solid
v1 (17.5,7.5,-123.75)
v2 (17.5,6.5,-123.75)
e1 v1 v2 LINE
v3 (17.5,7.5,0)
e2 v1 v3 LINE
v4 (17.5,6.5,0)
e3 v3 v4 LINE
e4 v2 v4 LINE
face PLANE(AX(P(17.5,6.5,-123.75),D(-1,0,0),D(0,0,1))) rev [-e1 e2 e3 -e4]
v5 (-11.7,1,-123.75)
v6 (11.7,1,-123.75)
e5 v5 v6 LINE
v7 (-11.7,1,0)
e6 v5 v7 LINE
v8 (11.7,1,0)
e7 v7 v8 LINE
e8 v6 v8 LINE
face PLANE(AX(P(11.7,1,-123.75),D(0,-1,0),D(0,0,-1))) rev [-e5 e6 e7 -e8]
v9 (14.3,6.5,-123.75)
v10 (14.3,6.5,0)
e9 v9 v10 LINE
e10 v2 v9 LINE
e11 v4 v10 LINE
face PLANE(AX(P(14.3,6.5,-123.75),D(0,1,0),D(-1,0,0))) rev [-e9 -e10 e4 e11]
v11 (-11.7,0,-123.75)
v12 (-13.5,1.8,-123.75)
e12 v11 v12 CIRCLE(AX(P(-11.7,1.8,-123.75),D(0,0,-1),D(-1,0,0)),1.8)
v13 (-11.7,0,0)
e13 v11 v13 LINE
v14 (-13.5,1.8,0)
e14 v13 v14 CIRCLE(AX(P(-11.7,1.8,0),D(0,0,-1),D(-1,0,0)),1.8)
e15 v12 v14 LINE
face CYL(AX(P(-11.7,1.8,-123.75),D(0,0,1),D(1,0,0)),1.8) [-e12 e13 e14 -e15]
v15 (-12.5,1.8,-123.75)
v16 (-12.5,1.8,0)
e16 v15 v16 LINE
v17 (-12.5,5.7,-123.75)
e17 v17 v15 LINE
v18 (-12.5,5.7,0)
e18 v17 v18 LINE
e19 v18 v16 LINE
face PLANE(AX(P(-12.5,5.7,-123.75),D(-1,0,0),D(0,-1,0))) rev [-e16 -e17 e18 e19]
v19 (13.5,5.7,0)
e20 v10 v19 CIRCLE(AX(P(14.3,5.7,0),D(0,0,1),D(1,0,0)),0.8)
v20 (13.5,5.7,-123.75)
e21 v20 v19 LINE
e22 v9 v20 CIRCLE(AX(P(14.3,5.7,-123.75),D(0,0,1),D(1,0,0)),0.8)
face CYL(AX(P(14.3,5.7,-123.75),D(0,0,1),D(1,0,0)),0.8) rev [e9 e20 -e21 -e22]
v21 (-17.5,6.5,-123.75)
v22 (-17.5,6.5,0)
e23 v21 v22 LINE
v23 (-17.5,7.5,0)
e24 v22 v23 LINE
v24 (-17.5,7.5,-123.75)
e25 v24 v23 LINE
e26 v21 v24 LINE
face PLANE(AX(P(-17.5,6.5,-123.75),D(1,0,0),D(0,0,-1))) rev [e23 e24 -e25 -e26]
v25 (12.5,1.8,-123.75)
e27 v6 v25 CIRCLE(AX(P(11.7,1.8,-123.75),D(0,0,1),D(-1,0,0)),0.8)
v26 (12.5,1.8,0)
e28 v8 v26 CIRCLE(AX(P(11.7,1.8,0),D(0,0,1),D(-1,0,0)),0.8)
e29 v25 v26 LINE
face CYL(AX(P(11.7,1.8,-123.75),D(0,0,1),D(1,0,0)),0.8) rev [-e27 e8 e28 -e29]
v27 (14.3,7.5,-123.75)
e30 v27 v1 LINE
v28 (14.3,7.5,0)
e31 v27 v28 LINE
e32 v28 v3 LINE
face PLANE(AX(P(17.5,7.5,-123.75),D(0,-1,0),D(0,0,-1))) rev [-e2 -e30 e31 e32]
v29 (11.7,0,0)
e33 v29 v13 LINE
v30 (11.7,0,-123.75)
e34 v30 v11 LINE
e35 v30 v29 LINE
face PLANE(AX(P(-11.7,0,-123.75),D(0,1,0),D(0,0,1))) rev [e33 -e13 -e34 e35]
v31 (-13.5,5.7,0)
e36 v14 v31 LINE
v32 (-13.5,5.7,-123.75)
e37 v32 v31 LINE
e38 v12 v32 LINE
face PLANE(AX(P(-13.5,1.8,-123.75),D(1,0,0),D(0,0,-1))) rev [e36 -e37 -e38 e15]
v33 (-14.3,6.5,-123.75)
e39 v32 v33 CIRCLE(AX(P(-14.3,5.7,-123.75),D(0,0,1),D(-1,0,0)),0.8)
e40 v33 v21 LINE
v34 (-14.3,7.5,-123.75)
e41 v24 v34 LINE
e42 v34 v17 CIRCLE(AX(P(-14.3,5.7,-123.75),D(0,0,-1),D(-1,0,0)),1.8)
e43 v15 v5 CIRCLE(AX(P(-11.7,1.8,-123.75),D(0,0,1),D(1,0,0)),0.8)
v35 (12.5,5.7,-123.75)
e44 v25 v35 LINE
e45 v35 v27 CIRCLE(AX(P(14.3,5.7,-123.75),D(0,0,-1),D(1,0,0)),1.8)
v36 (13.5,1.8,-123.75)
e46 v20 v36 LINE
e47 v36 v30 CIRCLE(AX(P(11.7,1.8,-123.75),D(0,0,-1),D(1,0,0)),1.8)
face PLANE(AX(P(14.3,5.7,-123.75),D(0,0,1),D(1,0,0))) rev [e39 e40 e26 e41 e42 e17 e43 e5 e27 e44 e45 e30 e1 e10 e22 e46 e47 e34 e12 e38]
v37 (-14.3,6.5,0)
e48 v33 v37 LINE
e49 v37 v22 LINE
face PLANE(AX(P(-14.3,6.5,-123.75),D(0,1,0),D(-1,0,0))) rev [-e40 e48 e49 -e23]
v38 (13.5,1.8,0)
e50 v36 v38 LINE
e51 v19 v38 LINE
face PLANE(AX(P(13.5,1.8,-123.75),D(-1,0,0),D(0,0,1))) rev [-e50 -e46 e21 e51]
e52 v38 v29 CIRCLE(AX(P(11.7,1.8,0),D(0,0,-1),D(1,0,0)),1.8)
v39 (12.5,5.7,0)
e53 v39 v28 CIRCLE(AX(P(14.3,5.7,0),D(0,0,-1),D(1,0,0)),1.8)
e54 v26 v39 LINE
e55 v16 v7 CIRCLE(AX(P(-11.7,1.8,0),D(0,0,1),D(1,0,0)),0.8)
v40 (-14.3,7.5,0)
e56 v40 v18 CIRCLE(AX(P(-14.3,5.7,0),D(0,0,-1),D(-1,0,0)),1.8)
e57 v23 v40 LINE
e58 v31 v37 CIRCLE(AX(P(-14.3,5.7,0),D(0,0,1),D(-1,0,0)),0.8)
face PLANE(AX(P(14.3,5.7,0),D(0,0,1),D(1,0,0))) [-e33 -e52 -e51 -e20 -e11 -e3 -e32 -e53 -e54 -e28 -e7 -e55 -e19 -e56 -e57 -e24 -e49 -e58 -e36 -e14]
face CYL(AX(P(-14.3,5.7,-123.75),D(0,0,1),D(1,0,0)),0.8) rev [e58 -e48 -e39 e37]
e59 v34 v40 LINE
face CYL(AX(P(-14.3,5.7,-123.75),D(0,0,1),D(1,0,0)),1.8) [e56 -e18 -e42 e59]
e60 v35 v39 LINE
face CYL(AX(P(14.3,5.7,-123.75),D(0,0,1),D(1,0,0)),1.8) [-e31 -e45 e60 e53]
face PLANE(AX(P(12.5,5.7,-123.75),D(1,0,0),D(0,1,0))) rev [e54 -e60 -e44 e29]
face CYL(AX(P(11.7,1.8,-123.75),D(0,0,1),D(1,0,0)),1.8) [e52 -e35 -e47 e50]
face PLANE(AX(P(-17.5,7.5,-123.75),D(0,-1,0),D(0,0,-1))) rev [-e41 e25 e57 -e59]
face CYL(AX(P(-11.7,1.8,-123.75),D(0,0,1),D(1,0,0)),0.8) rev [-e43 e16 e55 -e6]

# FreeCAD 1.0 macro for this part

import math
import FreeCAD as App
import Part
import Sketcher
from FreeCAD import Vector

doc = App.newDocument("Part")
body = doc.addObject("PartDesign::Body", "Body")

# Sketch on XY plane
sketch1 = doc.addObject("Sketcher::SketchObject", "Sketch")
body.addObject(sketch1)
sketch1.AttachmentSupport = (doc.XY_Plane, [""])
sketch1.MapMode = "FlatFace"
sketch1.addGeometry(Part.LineSegment(Vector(11.7, 0, 0), Vector(-11.7, 0, 0)), False)
sketch1.addGeometry(Part.ArcOfCircle(Part.Circle(Vector(-11.7, 1.8, 0), Vector(0, 0, 1), 1.8), math.radians(180), math.radians(270)), False)
sketch1.addGeometry(Part.LineSegment(Vector(-13.5, 1.8, 0), Vector(-13.5, 5.7, 0)), False)
sketch1.addGeometry(Part.ArcOfCircle(Part.Circle(Vector(-14.3, 5.7, 0), Vector(0, 0, 1), 0.8), math.radians(0), math.radians(90)), False)
sketch1.addGeometry(Part.LineSegment(Vector(-14.3, 6.5, 0), Vector(-17.5, 6.5, 0)), False)
sketch1.addGeometry(Part.LineSegment(Vector(-17.5, 6.5, 0), Vector(-17.5, 7.5, 0)), False)
sketch1.addGeometry(Part.LineSegment(Vector(-17.5, 7.5, 0), Vector(-14.3, 7.5, 0)), False)
sketch1.addGeometry(Part.ArcOfCircle(Part.Circle(Vector(-14.3, 5.7, 0), Vector(0, 0, 1), 1.8), math.radians(0), math.radians(90)), False)
sketch1.addGeometry(Part.LineSegment(Vector(-12.5, 5.7, 0), Vector(-12.5, 1.8, 0)), False)
sketch1.addGeometry(Part.ArcOfCircle(Part.Circle(Vector(-11.7, 1.8, 0), Vector(0, 0, 1), 0.8), math.radians(180), math.radians(270)), False)
sketch1.addGeometry(Part.LineSegment(Vector(-11.7, 1, 0), Vector(11.7, 1, 0)), False)
sketch1.addGeometry(Part.ArcOfCircle(Part.Circle(Vector(11.7, 1.8, 0), Vector(0, 0, 1), 0.8), math.radians(-90), math.radians(0)), False)
sketch1.addGeometry(Part.LineSegment(Vector(12.5, 1.8, 0), Vector(12.5, 5.7, 0)), False)
sketch1.addGeometry(Part.ArcOfCircle(Part.Circle(Vector(14.3, 5.7, 0), Vector(0, 0, 1), 1.8), math.radians(90), math.radians(180)), False)
sketch1.addGeometry(Part.LineSegment(Vector(14.3, 7.5, 0), Vector(17.5, 7.5, 0)), False)
sketch1.addGeometry(Part.LineSegment(Vector(17.5, 7.5, 0), Vector(17.5, 6.5, 0)), False)
sketch1.addGeometry(Part.LineSegment(Vector(17.5, 6.5, 0), Vector(14.3, 6.5, 0)), False)
sketch1.addGeometry(Part.ArcOfCircle(Part.Circle(Vector(14.3, 5.7, 0), Vector(0, 0, 1), 0.8), math.radians(90), math.radians(180)), False)
sketch1.addGeometry(Part.LineSegment(Vector(13.5, 5.7, 0), Vector(13.5, 1.8, 0)), False)
sketch1.addGeometry(Part.ArcOfCircle(Part.Circle(Vector(11.7, 1.8, 0), Vector(0, 0, 1), 1.8), math.radians(-90), math.radians(0)), False)
sketch1.addConstraint(Sketcher.Constraint("Tangent", 0, 2, 1, 2))
sketch1.addConstraint(Sketcher.Constraint("Tangent", 1, 1, 2, 1))
sketch1.addConstraint(Sketcher.Constraint("Tangent", 2, 2, 3, 1))
sketch1.addConstraint(Sketcher.Constraint("Tangent", 3, 2, 4, 1))
sketch1.addConstraint(Sketcher.Constraint("Coincident", 4, 2, 5, 1))
sketch1.addConstraint(Sketcher.Constraint("Coincident", 5, 2, 6, 1))
sketch1.addConstraint(Sketcher.Constraint("Tangent", 6, 2, 7, 2))
sketch1.addConstraint(Sketcher.Constraint("Tangent", 7, 1, 8, 1))
sketch1.addConstraint(Sketcher.Constraint("Tangent", 8, 2, 9, 1))
sketch1.addConstraint(Sketcher.Constraint("Tangent", 9, 2, 10, 1))
sketch1.addConstraint(Sketcher.Constraint("Tangent", 10, 2, 11, 1))
sketch1.addConstraint(Sketcher.Constraint("Tangent", 11, 2, 12, 1))
sketch1.addConstraint(Sketcher.Constraint("Tangent", 12, 2, 13, 2))
sketch1.addConstraint(Sketcher.Constraint("Tangent", 13, 1, 14, 1))
sketch1.addConstraint(Sketcher.Constraint("Coincident", 14, 2, 15, 1))
sketch1.addConstraint(Sketcher.Constraint("Coincident", 15, 2, 16, 1))
sketch1.addConstraint(Sketcher.Constraint("Tangent", 16, 2, 17, 1))
sketch1.addConstraint(Sketcher.Constraint("Tangent", 17, 2, 18, 1))
sketch1.addConstraint(Sketcher.Constraint("Tangent", 18, 2, 19, 2))
sketch1.addConstraint(Sketcher.Constraint("Tangent", 19, 1, 0, 1))
sketch1.addConstraint(Sketcher.Constraint("Horizontal", 0))
sketch1.addConstraint(Sketcher.Constraint("Vertical", 2))
sketch1.addConstraint(Sketcher.Constraint("Horizontal", 4))
sketch1.addConstraint(Sketcher.Constraint("Vertical", 5))
sketch1.addConstraint(Sketcher.Constraint("Horizontal", 6))
sketch1.addConstraint(Sketcher.Constraint("Vertical", 8))
sketch1.addConstraint(Sketcher.Constraint("Horizontal", 10))
sketch1.addConstraint(Sketcher.Constraint("Vertical", 12))
sketch1.addConstraint(Sketcher.Constraint("Horizontal", 14))
sketch1.addConstraint(Sketcher.Constraint("Vertical", 15))
sketch1.addConstraint(Sketcher.Constraint("Horizontal", 16))
sketch1.addConstraint(Sketcher.Constraint("Vertical", 18))
sketch1.addConstraint(Sketcher.Constraint("Coincident", 7, 3, 3, 3))
sketch1.addConstraint(Sketcher.Constraint("Coincident", 9, 3, 1, 3))
sketch1.addConstraint(Sketcher.Constraint("Coincident", 17, 3, 13, 3))
sketch1.addConstraint(Sketcher.Constraint("Coincident", 19, 3, 11, 3))
sketch1.addConstraint(Sketcher.Constraint("Equal", 1, 7))
sketch1.addConstraint(Sketcher.Constraint("Equal", 9, 11))
sketch1.addConstraint(Sketcher.Constraint("Equal", 7, 13))
sketch1.addConstraint(Sketcher.Constraint("Symmetric", 0, 2, 19, 1, -1, 1))
sketch1.addConstraint(Sketcher.Constraint("Symmetric", 5, 2, 14, 2, -2))
sketch1.addConstraint(Sketcher.Constraint("Radius", 1, 1.8))
sketch1.addConstraint(Sketcher.Constraint("Radius", 3, 0.8))
sketch1.addConstraint(Sketcher.Constraint("DistanceX", 0, 2, 0, 1, 23.4))
sketch1.addConstraint(Sketcher.Constraint("DistanceX", 4, 2, 4, 1, 3.2))
sketch1.addConstraint(Sketcher.Constraint("DistanceY", 2, 1, 2, 2, 3.9))
pad1 = doc.addObject("PartDesign::Pad", "Pad")
body.addObject(pad1)
pad1.Profile = sketch1
pad1.Length = 123.75
pad1.Reversed = True

doc.recompute()
